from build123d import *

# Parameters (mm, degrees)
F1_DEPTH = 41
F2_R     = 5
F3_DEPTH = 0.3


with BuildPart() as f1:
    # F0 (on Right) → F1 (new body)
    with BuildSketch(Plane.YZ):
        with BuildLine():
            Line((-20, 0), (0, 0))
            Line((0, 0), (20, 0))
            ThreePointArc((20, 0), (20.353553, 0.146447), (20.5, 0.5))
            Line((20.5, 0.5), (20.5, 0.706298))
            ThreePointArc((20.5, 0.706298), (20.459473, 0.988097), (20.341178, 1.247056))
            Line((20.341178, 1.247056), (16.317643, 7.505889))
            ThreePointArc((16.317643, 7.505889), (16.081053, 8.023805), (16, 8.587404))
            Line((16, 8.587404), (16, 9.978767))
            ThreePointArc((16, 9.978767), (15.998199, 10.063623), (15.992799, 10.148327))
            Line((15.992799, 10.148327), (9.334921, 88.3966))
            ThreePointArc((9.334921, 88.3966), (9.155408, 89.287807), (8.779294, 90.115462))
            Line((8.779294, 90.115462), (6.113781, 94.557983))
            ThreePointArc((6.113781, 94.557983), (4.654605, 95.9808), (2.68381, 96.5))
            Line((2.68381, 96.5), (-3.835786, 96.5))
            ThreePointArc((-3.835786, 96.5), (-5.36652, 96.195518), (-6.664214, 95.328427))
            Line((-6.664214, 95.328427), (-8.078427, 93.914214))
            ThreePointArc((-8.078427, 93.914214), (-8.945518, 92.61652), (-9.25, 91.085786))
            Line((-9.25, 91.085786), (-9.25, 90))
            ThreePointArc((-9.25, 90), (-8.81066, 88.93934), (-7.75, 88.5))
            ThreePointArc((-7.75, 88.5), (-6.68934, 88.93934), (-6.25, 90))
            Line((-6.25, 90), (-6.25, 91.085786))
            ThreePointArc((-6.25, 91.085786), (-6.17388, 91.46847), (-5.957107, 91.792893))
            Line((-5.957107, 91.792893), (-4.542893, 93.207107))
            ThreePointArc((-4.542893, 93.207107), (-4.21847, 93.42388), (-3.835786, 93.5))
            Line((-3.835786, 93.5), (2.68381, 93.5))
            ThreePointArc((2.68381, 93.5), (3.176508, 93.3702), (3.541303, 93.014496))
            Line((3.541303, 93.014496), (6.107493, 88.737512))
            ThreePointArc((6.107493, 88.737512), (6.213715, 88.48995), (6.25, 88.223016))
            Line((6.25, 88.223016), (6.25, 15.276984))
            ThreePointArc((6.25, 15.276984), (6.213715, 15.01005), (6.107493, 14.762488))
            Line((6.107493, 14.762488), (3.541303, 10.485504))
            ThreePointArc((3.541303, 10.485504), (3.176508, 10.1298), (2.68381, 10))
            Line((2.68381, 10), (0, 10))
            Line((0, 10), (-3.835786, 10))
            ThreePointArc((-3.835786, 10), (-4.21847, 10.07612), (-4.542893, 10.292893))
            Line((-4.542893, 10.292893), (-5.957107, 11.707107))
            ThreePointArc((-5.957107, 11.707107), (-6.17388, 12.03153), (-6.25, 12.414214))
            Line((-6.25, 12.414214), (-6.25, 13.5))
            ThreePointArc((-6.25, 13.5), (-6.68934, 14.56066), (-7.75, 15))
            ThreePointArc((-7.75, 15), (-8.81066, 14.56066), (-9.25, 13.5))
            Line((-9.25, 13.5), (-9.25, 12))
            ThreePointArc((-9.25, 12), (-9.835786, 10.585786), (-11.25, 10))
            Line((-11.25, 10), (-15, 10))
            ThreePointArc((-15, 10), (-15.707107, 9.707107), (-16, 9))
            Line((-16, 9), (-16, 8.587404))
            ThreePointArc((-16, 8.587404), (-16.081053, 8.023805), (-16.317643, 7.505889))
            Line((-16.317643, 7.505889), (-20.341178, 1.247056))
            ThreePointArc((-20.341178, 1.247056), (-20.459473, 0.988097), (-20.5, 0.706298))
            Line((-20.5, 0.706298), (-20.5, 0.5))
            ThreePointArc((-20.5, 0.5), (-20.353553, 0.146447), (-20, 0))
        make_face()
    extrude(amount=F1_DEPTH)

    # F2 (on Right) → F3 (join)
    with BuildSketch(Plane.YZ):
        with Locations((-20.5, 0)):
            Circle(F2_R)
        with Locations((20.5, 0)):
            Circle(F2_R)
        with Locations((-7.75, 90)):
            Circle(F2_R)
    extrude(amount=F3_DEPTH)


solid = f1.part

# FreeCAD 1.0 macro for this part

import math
import FreeCAD as App
import Part
import Sketcher

V = App.Vector

doc = App.newDocument("Part")
body = doc.addObject("PartDesign::Body", "Body")

# Sketch on YZ plane
sketch1 = doc.addObject("Sketcher::SketchObject", "Sketch")
body.addObject(sketch1)
sketch1.AttachmentSupport = (doc.YZ_Plane, [""])
sketch1.MapMode = "FlatFace"
sketch1.addGeometry(Part.LineSegment(V(-20, 0, 0), V(20, 0, 0)), False)
sketch1.addGeometry(Part.ArcOfCircle(Part.Circle(V(20, 0.5, 0), V(0, 0, 1), 0.5), math.radians(-90), math.radians(0)), False)
sketch1.addGeometry(Part.LineSegment(V(20.5, 0.5, 0), V(20.5, 0.71, 0)), False)
sketch1.addGeometry(Part.ArcOfCircle(Part.Circle(V(19.5, 0.71, 0), V(0, 0, 1), 1), math.radians(0), math.radians(33)), False)
sketch1.addGeometry(Part.LineSegment(V(20.34, 1.25, 0), V(16.32, 7.51, 0)), False)
sketch1.addGeometry(Part.ArcOfCircle(Part.Circle(V(18, 8.59, 0), V(0, 0, 1), 2), math.radians(180), math.radians(213)), False)
sketch1.addGeometry(Part.LineSegment(V(16, 8.59, 0), V(16, 9.98, 0)), False)
sketch1.addGeometry(Part.ArcOfCircle(Part.Circle(V(14, 9.98, 0), V(0, 0, 1), 2), math.radians(0), math.radians(4.86)), False)
sketch1.addGeometry(Part.LineSegment(V(15.99, 10.15, 0), V(9.33, 88.4, 0)), False)
sketch1.addGeometry(Part.ArcOfCircle(Part.Circle(V(5.35, 88.06, 0), V(0, 0, 1), 4), math.radians(5), math.radians(31)), False)
sketch1.addGeometry(Part.LineSegment(V(8.78, 90.12, 0), V(6.11, 94.56, 0)), False)
sketch1.addGeometry(Part.ArcOfCircle(Part.Circle(V(2.68, 92.5, 0), V(0, 0, 1), 4), math.radians(31), math.radians(90)), False)
sketch1.addGeometry(Part.LineSegment(V(2.68, 96.5, 0), V(-3.84, 96.5, 0)), False)
sketch1.addGeometry(Part.ArcOfCircle(Part.Circle(V(-3.84, 92.5, 0), V(0, 0, 1), 4), math.radians(90), math.radians(135)), False)
sketch1.addGeometry(Part.LineSegment(V(-6.66, 95.33, 0), V(-8.08, 93.91, 0)), False)
sketch1.addGeometry(Part.ArcOfCircle(Part.Circle(V(-5.25, 91.09, 0), V(0, 0, 1), 4), math.radians(135), math.radians(180)), False)
sketch1.addGeometry(Part.LineSegment(V(-9.25, 91.09, 0), V(-9.25, 90, 0)), False)
sketch1.addGeometry(Part.ArcOfCircle(Part.Circle(V(-7.75, 90, 0), V(0, 0, 1), 1.5), math.radians(-180), math.radians(-90)), False)
sketch1.addGeometry(Part.ArcOfCircle(Part.Circle(V(-7.75, 90, 0), V(0, 0, 1), 1.5), math.radians(-90), math.radians(0)), False)
sketch1.addGeometry(Part.LineSegment(V(-6.25, 90, 0), V(-6.25, 91.09, 0)), False)
sketch1.addGeometry(Part.ArcOfCircle(Part.Circle(V(-5.25, 91.09, 0), V(0, 0, 1), 1), math.radians(135), math.radians(180)), False)
sketch1.addGeometry(Part.LineSegment(V(-5.96, 91.79, 0), V(-4.54, 93.21, 0)), False)
sketch1.addGeometry(Part.ArcOfCircle(Part.Circle(V(-3.84, 92.5, 0), V(0, 0, 1), 1), math.radians(90), math.radians(135)), False)
sketch1.addGeometry(Part.LineSegment(V(-3.84, 93.5, 0), V(2.68, 93.5, 0)), False)
sketch1.addGeometry(Part.ArcOfCircle(Part.Circle(V(2.68, 92.5, 0), V(0, 0, 1), 1), math.radians(31), math.radians(90)), False)
sketch1.addGeometry(Part.LineSegment(V(3.54, 93.01, 0), V(6.11, 88.74, 0)), False)
sketch1.addGeometry(Part.ArcOfCircle(Part.Circle(V(5.25, 88.22, 0), V(0, 0, 1), 1), math.radians(0), math.radians(31)), False)
sketch1.addGeometry(Part.LineSegment(V(6.25, 88.22, 0), V(6.25, 15.28, 0)), False)
sketch1.addGeometry(Part.ArcOfCircle(Part.Circle(V(5.25, 15.28, 0), V(0, 0, 1), 1), math.radians(-31), math.radians(0)), False)
sketch1.addGeometry(Part.LineSegment(V(6.11, 14.76, 0), V(3.54, 10.49, 0)), False)
sketch1.addGeometry(Part.ArcOfCircle(Part.Circle(V(2.68, 11, 0), V(0, 0, 1), 1), math.radians(-90), math.radians(-31)), False)
sketch1.addGeometry(Part.LineSegment(V(2.68, 10, 0), V(-3.84, 10, 0)), False)
sketch1.addGeometry(Part.ArcOfCircle(Part.Circle(V(-3.84, 11, 0), V(0, 0, 1), 1), math.radians(-135), math.radians(-90)), False)
sketch1.addGeometry(Part.LineSegment(V(-4.54, 10.29, 0), V(-5.96, 11.71, 0)), False)
sketch1.addGeometry(Part.ArcOfCircle(Part.Circle(V(-5.25, 12.41, 0), V(0, 0, 1), 1), math.radians(180), math.radians(225)), False)
sketch1.addGeometry(Part.LineSegment(V(-6.25, 12.41, 0), V(-6.25, 13.5, 0)), False)
sketch1.addGeometry(Part.ArcOfCircle(Part.Circle(V(-7.75, 13.5, 0), V(0, 0, 1), 1.5), math.radians(0), math.radians(90)), False)
sketch1.addGeometry(Part.ArcOfCircle(Part.Circle(V(-7.75, 13.5, 0), V(0, 0, 1), 1.5), math.radians(90), math.radians(180)), False)
sketch1.addGeometry(Part.LineSegment(V(-9.25, 13.5, 0), V(-9.25, 12, 0)), False)
sketch1.addGeometry(Part.ArcOfCircle(Part.Circle(V(-11.25, 12, 0), V(0, 0, 1), 2), math.radians(-90), math.radians(0)), False)
sketch1.addGeometry(Part.LineSegment(V(-11.25, 10, 0), V(-15, 10, 0)), False)
sketch1.addGeometry(Part.ArcOfCircle(Part.Circle(V(-15, 9, 0), V(0, 0, 1), 1), math.radians(90), math.radians(180)), False)
sketch1.addGeometry(Part.LineSegment(V(-16, 9, 0), V(-16, 8.59, 0)), False)
sketch1.addGeometry(Part.ArcOfCircle(Part.Circle(V(-18, 8.59, 0), V(0, 0, 1), 2), math.radians(-33), math.radians(0)), False)
sketch1.addGeometry(Part.LineSegment(V(-16.32, 7.51, 0), V(-20.34, 1.25, 0)), False)
sketch1.addGeometry(Part.ArcOfCircle(Part.Circle(V(-19.5, 0.71, 0), V(0, 0, 1), 1), math.radians(147), math.radians(180)), False)
sketch1.addGeometry(Part.LineSegment(V(-20.5, 0.71, 0), V(-20.5, 0.5, 0)), False)
sketch1.addGeometry(Part.ArcOfCircle(Part.Circle(V(-20, 0.5, 0), V(0, 0, 1), 0.5), math.radians(-180), math.radians(-90)), False)
sketch1.addConstraint(Sketcher.Constraint("Coincident", 0, 2, 1, 1))
sketch1.addConstraint(Sketcher.Constraint("Coincident", 1, 2, 2, 1))
sketch1.addConstraint(Sketcher.Constraint("Coincident", 2, 2, 3, 1))
sketch1.addConstraint(Sketcher.Constraint("Tangent", 3, 2, 4, 1))
sketch1.addConstraint(Sketcher.Constraint("Tangent", 4, 2, 5, 2))
sketch1.addConstraint(Sketcher.Constraint("Tangent", 5, 1, 6, 1))
sketch1.addConstraint(Sketcher.Constraint("Tangent", 6, 2, 7, 1))
sketch1.addConstraint(Sketcher.Constraint("Coincident", 7, 2, 8, 1))
sketch1.addConstraint(Sketcher.Constraint("Tangent", 8, 2, 9, 1))
sketch1.addConstraint(Sketcher.Constraint("Tangent", 9, 2, 10, 1))
sketch1.addConstraint(Sketcher.Constraint("Tangent", 10, 2, 11, 1))
sketch1.addConstraint(Sketcher.Constraint("Tangent", 11, 2, 12, 1))
sketch1.addConstraint(Sketcher.Constraint("Tangent", 12, 2, 13, 1))
sketch1.addConstraint(Sketcher.Constraint("Tangent", 13, 2, 14, 1))
sketch1.addConstraint(Sketcher.Constraint("Tangent", 14, 2, 15, 1))
sketch1.addConstraint(Sketcher.Constraint("Tangent", 15, 2, 16, 1))
sketch1.addConstraint(Sketcher.Constraint("Tangent", 16, 2, 17, 1))
sketch1.addConstraint(Sketcher.Constraint("Tangent", 17, 2, 18, 1))
sketch1.addConstraint(Sketcher.Constraint("Tangent", 18, 2, 19, 1))
sketch1.addConstraint(Sketcher.Constraint("Coincident", 19, 2, 20, 2))
sketch1.addConstraint(Sketcher.Constraint("Coincident", 20, 1, 21, 1))
sketch1.addConstraint(Sketcher.Constraint("Coincident", 21, 2, 22, 2))
sketch1.addConstraint(Sketcher.Constraint("Coincident", 22, 1, 23, 1))
sketch1.addConstraint(Sketcher.Constraint("Tangent", 23, 2, 24, 2))
sketch1.addConstraint(Sketcher.Constraint("Tangent", 24, 1, 25, 1))
sketch1.addConstraint(Sketcher.Constraint("Tangent", 25, 2, 26, 2))
sketch1.addConstraint(Sketcher.Constraint("Tangent", 26, 1, 27, 1))
sketch1.addConstraint(Sketcher.Constraint("Tangent", 27, 2, 28, 2))
sketch1.addConstraint(Sketcher.Constraint("Tangent", 28, 1, 29, 1))
sketch1.addConstraint(Sketcher.Constraint("Tangent", 29, 2, 30, 2))
sketch1.addConstraint(Sketcher.Constraint("Tangent", 30, 1, 31, 1))
sketch1.addConstraint(Sketcher.Constraint("Coincident", 31, 2, 32, 2))
sketch1.addConstraint(Sketcher.Constraint("Coincident", 32, 1, 33, 1))
sketch1.addConstraint(Sketcher.Constraint("Coincident", 33, 2, 34, 2))
sketch1.addConstraint(Sketcher.Constraint("Coincident", 34, 1, 35, 1))
sketch1.addConstraint(Sketcher.Constraint("Tangent", 35, 2, 36, 1))
sketch1.addConstraint(Sketcher.Constraint("Tangent", 36, 2, 37, 1))
sketch1.addConstraint(Sketcher.Constraint("Tangent", 37, 2, 38, 1))
sketch1.addConstraint(Sketcher.Constraint("Tangent", 38, 2, 39, 2))
sketch1.addConstraint(Sketcher.Constraint("Tangent", 39, 1, 40, 1))
sketch1.addConstraint(Sketcher.Constraint("Tangent", 40, 2, 41, 1))
sketch1.addConstraint(Sketcher.Constraint("Tangent", 41, 2, 42, 1))
sketch1.addConstraint(Sketcher.Constraint("Tangent", 42, 2, 43, 2))
sketch1.addConstraint(Sketcher.Constraint("Tangent", 43, 1, 44, 1))
sketch1.addConstraint(Sketcher.Constraint("Tangent", 44, 2, 45, 1))
sketch1.addConstraint(Sketcher.Constraint("Coincident", 45, 2, 46, 1))
sketch1.addConstraint(Sketcher.Constraint("Coincident", 46, 2, 47, 1))
sketch1.addConstraint(Sketcher.Constraint("Coincident", 47, 2, 0, 1))
sketch1.addConstraint(Sketcher.Constraint("Horizontal", 0))
sketch1.addConstraint(Sketcher.Constraint("Vertical", 2))
sketch1.addConstraint(Sketcher.Constraint("Vertical", 6))
sketch1.addConstraint(Sketcher.Constraint("Horizontal", 12))
sketch1.addConstraint(Sketcher.Constraint("Vertical", 16))
sketch1.addConstraint(Sketcher.Constraint("Vertical", 19))
sketch1.addConstraint(Sketcher.Constraint("Horizontal", 23))
sketch1.addConstraint(Sketcher.Constraint("Vertical", 27))
sketch1.addConstraint(Sketcher.Constraint("Horizontal", 31))
sketch1.addConstraint(Sketcher.Constraint("Vertical", 35))
sketch1.addConstraint(Sketcher.Constraint("Vertical", 38))
sketch1.addConstraint(Sketcher.Constraint("Horizontal", 40))
sketch1.addConstraint(Sketcher.Constraint("Vertical", 42))
sketch1.addConstraint(Sketcher.Constraint("Vertical", 46))
sketch1.addConstraint(Sketcher.Constraint("Coincident", 24, 3, 11, 3))
sketch1.addConstraint(Sketcher.Constraint("Equal", 13, 15))
sketch1.addConstraint(Sketcher.Constraint("Equal", 17, 18))
sketch1.addConstraint(Sketcher.Constraint("Equal", 20, 22))
sketch1.addConstraint(Sketcher.Constraint("Equal", 26, 28))
sketch1.addConstraint(Sketcher.Constraint("Equal", 24, 30))
sketch1.addConstraint(Sketcher.Constraint("Equal", 22, 32))
sketch1.addConstraint(Sketcher.Constraint("Equal", 32, 34))
sketch1.addConstraint(Sketcher.Constraint("Equal", 18, 36))
sketch1.addConstraint(Sketcher.Constraint("Equal", 36, 37))
sketch1.addConstraint(Sketcher.Constraint("Equal", 28, 41))
sketch1.addConstraint(Sketcher.Constraint("Equal", 5, 43))
sketch1.addConstraint(Sketcher.Constraint("Equal", 3, 45))
sketch1.addConstraint(Sketcher.Constraint("Equal", 1, 47))
sketch1.addConstraint(Sketcher.Constraint("Symmetric", 0, 2, 47, 2, -1, 1))
sketch1.addConstraint(Sketcher.Constraint("Symmetric", 5, 3, 43, 3, -2))
sketch1.addConstraint(Sketcher.Constraint("Symmetric", 3, 3, 45, 3, -2))
sketch1.addConstraint(Sketcher.Constraint("Parallel", 14, 21))
sketch1.addConstraint(Sketcher.Constraint("Parallel", 10, 25))
sketch1.addConstraint(Sketcher.Constraint("Perpendicular", 21, 33))
sketch1.addConstraint(Sketcher.Constraint("Horizontal", 13, 3, 24, 3))
sketch1.addConstraint(Sketcher.Constraint("Horizontal", 47, 3, 1, 2))
sketch1.addConstraint(Sketcher.Constraint("Horizontal", 15, 2, 19, 2))
sketch1.addConstraint(Sketcher.Constraint("Horizontal", 31, 2, 39, 1))
sketch1.addConstraint(Sketcher.Constraint("Horizontal", 2, 2, 45, 2))
sketch1.addConstraint(Sketcher.Constraint("Horizontal", 1, 2, 46, 2))
sketch1.addConstraint(Sketcher.Constraint("Vertical", 24, 3, 30, 3))
sketch1.addConstraint(Sketcher.Constraint("Vertical", 22, 3, 32, 3))
sketch1.addConstraint(Sketcher.Constraint("Vertical", 20, 3, 34, 3))
sketch1.addConstraint(Sketcher.Constraint("Vertical", 1, 3, 0, 2))
sketch1.addConstraint(Sketcher.Constraint("Vertical", 37, 3, 17, 2))
sketch1.addConstraint(Sketcher.Constraint("Vertical", 12, 2, 22, 1))
sketch1.addConstraint(Sketcher.Constraint("Vertical", 25, 2, 28, 1))
sketch1.addConstraint(Sketcher.Constraint("Vertical", 22, 1, 31, 2))
sketch1.addConstraint(Sketcher.Constraint("Vertical", 21, 2, 32, 1))
sketch1.addConstraint(Sketcher.Constraint("Vertical", 20, 1, 33, 2))
sketch1.addConstraint(Sketcher.Constraint("Vertical", 17, 2, 36, 2))
sketch1.addConstraint(Sketcher.Constraint("Equal", 19, 35))
sketch1.addConstraint(Sketcher.Constraint("Equal", 14, 21))
sketch1.addConstraint(Sketcher.Constraint("Equal", 21, 33))
sketch1.addConstraint(Sketcher.Constraint("Radius", 39, 1.999999))
sketch1.addConstraint(Sketcher.Constraint("Radius", 41, 0.999999))
sketch1.addConstraint(Sketcher.Constraint("Radius", 1, 0.500001))
sketch1.addConstraint(Sketcher.Constraint("Radius", 17, 1.500001))
sketch1.addConstraint(Sketcher.Constraint("DistanceX", 0, 1, 0, 2, 40.0))
sketch1.addConstraint(Sketcher.Constraint("Distance", 14, 1.999999))
sketch1.addConstraint(Sketcher.Constraint("DistanceY", 38, 2, 38, 1, 1.5))
sketch1.addConstraint(Sketcher.Constraint("DistanceY", -1, 1, 17, 3, 90.000001))
sketch1.addConstraint(Sketcher.Constraint("DistanceY", -1, 1, 39, 3, 11.999999))
sketch1.addConstraint(Sketcher.Constraint("DistanceX", 41, 3, -1, 1, 15.000001))
sketch1.addConstraint(Sketcher.Constraint("DistanceX", 40, 2, 40, 1, 3.75))
sketch1.addConstraint(Sketcher.Constraint("DistanceY", -1, 1, 11, 2, 96.5))
sketch1.addConstraint(Sketcher.Constraint("DistanceY", -1, 1, 22, 1, 93.5))
sketch1.addConstraint(Sketcher.Constraint("DistanceX", -1, 1, 26, 1, 6.25))
sketch1.addConstraint(Sketcher.Constraint("Radius", 3, 1.000008))
sketch1.addConstraint(Sketcher.Constraint("Radius", 5, 1.999991))
sketch1.addConstraint(Sketcher.Constraint("Radius", 9, 4.000022))
sketch1.addConstraint(Sketcher.Constraint("Radius", 7, 1.999844))
sketch1.addConstraint(Sketcher.Constraint("Radius", 11, 3.999996))
sketch1.addConstraint(Sketcher.Constraint("Radius", 20, 0.999994))
sketch1.addConstraint(Sketcher.Constraint("DistanceY", -1, 1, 5, 3, 8.587401))
sketch1.addConstraint(Sketcher.Constraint("DistanceX", -1, 1, 9, 3, 5.349301))
sketch1.addConstraint(Sketcher.Constraint("DistanceX", -1, 1, 7, 2, 15.992799))
sketch1.addConstraint(Sketcher.Constraint("DistanceY", -1, 1, 8, 2, 88.3966))
sketch1.addConstraint(Sketcher.Constraint("DistanceY", -1, 1, 45, 2, 0.706298))
sketch1.addConstraint(Sketcher.Constraint("Distance", 8, 78.53101))
sketch1.addConstraint(Sketcher.Constraint("DistanceX", 12, 2, 12, 1, 6.519596))
sketch1.addConstraint(Sketcher.Constraint("DistanceY", -1, 1, 20, 3, 91.085789))
sketch1.addConstraint(Sketcher.Constraint("DistanceY", -1, 1, 4, 2, 7.505889))
sketch1.addConstraint(Sketcher.Constraint("DistanceX", 20, 1, -1, 1, 5.957107))
pad1 = doc.addObject("PartDesign::Pad", "Pad")
body.addObject(pad1)
pad1.Profile = sketch1
pad1.Length = 41

# Sketch on YZ plane
sketch2 = doc.addObject("Sketcher::SketchObject", "Sketch001")
body.addObject(sketch2)
sketch2.AttachmentSupport = (doc.YZ_Plane, [""])
sketch2.MapMode = "FlatFace"
sketch2.addGeometry(Part.Circle(V(-20, 0, 0), V(0, 0, 1), 5), False)
sketch2.addGeometry(Part.Circle(V(20, 0, 0), V(0, 0, 1), 5), False)
sketch2.addGeometry(Part.Circle(V(-8, 90, 0), V(0, 0, 1), 5), False)
sketch2.addConstraint(Sketcher.Constraint("Equal", 0, 1))
sketch2.addConstraint(Sketcher.Constraint("Equal", 1, 2))
sketch2.addConstraint(Sketcher.Constraint("Symmetric", 0, 3, 1, 3, -1, 1))
sketch2.addConstraint(Sketcher.Constraint("PointOnObject", 0, 3, -1))
sketch2.addConstraint(Sketcher.Constraint("Diameter", 0, 10.0))
sketch2.addConstraint(Sketcher.Constraint("DistanceY", -1, 1, 2, 3, 90.0))
sketch2.addConstraint(Sketcher.Constraint("DistanceX", 0, 3, 1, 3, 41.0))
sketch2.addConstraint(Sketcher.Constraint("DistanceX", 2, 3, -1, 1, 7.75))
pad2 = doc.addObject("PartDesign::Pad", "Pad001")
body.addObject(pad2)
pad2.Profile = sketch2
pad2.Length = 0.3

doc.recompute()
